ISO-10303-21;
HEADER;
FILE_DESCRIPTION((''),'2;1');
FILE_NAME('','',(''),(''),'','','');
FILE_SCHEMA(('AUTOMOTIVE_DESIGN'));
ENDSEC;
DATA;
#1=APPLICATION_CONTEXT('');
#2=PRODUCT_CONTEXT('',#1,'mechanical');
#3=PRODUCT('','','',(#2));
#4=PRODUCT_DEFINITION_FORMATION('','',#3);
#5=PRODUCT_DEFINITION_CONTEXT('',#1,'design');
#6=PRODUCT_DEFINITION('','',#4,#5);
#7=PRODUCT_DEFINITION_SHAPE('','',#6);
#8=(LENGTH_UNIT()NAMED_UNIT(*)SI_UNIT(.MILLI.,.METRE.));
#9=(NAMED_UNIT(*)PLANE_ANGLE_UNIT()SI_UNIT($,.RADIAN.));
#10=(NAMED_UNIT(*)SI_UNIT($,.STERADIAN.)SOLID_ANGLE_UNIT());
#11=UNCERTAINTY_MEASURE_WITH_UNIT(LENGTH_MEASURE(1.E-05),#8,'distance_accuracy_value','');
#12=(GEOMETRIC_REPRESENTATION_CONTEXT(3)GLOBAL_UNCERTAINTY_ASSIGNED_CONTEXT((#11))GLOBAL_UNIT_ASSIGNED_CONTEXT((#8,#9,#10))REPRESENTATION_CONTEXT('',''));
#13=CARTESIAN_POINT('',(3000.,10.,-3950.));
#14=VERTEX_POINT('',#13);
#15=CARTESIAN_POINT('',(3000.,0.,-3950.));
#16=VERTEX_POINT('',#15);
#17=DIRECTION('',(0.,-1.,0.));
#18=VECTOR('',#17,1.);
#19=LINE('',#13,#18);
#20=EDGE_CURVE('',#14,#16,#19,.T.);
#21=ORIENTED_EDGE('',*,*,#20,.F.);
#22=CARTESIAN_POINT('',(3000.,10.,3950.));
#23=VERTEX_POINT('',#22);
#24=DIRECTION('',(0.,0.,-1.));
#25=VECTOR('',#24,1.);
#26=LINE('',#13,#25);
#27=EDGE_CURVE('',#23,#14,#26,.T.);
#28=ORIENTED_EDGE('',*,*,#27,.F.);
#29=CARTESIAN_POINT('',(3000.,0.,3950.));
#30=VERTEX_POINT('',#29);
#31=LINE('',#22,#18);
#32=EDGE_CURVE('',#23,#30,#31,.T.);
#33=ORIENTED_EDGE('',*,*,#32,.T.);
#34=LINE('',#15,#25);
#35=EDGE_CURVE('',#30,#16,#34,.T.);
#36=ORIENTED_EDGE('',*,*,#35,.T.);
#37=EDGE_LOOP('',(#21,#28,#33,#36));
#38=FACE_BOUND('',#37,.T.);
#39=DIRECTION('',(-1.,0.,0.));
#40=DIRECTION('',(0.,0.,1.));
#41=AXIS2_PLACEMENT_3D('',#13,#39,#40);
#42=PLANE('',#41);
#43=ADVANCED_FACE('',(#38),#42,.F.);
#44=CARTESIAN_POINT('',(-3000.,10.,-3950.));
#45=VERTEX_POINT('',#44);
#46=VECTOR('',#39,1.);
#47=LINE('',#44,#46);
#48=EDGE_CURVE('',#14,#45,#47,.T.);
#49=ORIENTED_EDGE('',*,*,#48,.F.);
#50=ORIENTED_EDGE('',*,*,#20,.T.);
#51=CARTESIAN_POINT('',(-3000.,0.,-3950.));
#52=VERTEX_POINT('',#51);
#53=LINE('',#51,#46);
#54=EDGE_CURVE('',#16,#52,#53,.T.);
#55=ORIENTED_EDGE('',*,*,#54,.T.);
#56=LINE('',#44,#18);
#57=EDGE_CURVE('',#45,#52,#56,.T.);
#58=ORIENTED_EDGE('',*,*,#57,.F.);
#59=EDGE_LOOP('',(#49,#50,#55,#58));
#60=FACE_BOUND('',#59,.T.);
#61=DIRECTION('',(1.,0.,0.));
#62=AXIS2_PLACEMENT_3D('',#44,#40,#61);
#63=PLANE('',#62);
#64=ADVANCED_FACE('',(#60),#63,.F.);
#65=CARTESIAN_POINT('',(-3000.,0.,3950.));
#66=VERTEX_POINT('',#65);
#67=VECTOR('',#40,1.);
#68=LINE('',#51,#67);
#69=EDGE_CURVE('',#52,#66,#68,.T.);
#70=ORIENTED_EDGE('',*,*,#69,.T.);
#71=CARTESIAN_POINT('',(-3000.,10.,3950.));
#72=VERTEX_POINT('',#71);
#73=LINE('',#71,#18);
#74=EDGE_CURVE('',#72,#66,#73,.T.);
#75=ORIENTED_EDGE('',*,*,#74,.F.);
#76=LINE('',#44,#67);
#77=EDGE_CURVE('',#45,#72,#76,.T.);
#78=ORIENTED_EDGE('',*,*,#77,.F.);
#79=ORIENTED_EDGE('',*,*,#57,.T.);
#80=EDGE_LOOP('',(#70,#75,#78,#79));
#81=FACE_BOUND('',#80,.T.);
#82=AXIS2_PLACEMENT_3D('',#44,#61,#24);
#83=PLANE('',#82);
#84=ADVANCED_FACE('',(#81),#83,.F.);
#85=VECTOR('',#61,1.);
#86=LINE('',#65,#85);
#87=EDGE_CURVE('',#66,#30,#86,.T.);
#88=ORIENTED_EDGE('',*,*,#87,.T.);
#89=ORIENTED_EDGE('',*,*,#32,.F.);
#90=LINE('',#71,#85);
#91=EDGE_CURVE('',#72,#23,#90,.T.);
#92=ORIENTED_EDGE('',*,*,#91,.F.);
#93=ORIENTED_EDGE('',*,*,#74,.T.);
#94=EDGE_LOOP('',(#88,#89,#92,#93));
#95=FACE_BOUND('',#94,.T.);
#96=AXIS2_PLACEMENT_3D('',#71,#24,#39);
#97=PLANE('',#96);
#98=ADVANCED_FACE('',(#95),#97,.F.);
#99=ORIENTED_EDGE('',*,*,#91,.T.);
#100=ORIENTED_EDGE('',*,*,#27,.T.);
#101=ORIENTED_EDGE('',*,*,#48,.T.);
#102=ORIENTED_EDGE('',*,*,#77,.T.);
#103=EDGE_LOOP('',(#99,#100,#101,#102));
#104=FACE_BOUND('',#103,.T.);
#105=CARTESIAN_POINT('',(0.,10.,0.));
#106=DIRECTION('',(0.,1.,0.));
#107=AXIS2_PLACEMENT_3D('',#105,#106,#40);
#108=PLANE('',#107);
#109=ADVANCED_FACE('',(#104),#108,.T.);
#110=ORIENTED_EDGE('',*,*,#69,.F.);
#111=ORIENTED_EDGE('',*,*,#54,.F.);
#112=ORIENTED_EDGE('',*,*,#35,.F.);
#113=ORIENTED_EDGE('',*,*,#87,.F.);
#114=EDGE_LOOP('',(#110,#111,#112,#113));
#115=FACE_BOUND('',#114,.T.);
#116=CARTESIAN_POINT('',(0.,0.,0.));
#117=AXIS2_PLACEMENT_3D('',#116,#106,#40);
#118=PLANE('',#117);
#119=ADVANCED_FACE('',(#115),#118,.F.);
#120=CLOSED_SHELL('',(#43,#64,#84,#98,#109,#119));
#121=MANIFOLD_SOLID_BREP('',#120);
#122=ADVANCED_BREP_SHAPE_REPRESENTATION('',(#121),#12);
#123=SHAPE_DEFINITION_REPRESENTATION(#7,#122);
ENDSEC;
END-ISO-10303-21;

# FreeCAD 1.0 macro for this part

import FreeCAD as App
import Part
import Sketcher
from FreeCAD import Vector

doc = App.newDocument("Part")
params = doc.addObject("Spreadsheet::Sheet", "Params")
for row, (alias, value) in enumerate([
    ("sketch1_width", "6000 mm"),
    ("sketch1_height", "7900 mm"),
    ("pad1_length", "10 mm"),
], start=1):
    params.set(f"A{row}", alias)
    params.set(f"B{row}", "=" + value)
    params.setAlias(f"B{row}", alias)

body = doc.addObject("PartDesign::Body", "Body")

# Sketch on XZ plane
sketch1 = body.newObject("Sketcher::SketchObject", "Sketch")
sketch1.AttachmentSupport = (doc.getObject("XZ_Plane"), [""])
sketch1.MapMode = "FlatFace"
sketch1.addGeometry(Part.LineSegment(Vector(-3000, -3950, 0), Vector(-3000, 3950, 0)), False)
sketch1.addGeometry(Part.LineSegment(Vector(-3000, 3950, 0), Vector(3000, 3950, 0)), False)
sketch1.addGeometry(Part.LineSegment(Vector(3000, 3950, 0), Vector(3000, -3950, 0)), False)
sketch1.addGeometry(Part.LineSegment(Vector(3000, -3950, 0), Vector(-3000, -3950, 0)), False)
sketch1.addConstraint(Sketcher.Constraint("Coincident", 0, 2, 1, 1))
sketch1.addConstraint(Sketcher.Constraint("Coincident", 1, 2, 2, 1))
sketch1.addConstraint(Sketcher.Constraint("Coincident", 2, 2, 3, 1))
sketch1.addConstraint(Sketcher.Constraint("Coincident", 3, 2, 0, 1))
sketch1.addConstraint(Sketcher.Constraint("Vertical", 0))
sketch1.addConstraint(Sketcher.Constraint("Horizontal", 1))
sketch1.addConstraint(Sketcher.Constraint("Vertical", 2))
sketch1.addConstraint(Sketcher.Constraint("Horizontal", 3))
sketch1.addConstraint(Sketcher.Constraint("Symmetric", 0, 2, 2, 2, -1, 1))
sketch1.addConstraint(Sketcher.Constraint("DistanceX", 1, 1, 1, 2, 6000.0))
sketch1.addConstraint(Sketcher.Constraint("DistanceY", 0, 1, 0, 2, 7900.0))
sketch1.setExpression("Constraints[9]", "Params.sketch1_width")
sketch1.setExpression("Constraints[10]", "Params.sketch1_height")
pad1 = body.newObject("PartDesign::Pad", "Pad")
pad1.Profile = sketch1
pad1.setExpression("Length", "Params.pad1_length")
pad1.Reversed = True

doc.recompute()
